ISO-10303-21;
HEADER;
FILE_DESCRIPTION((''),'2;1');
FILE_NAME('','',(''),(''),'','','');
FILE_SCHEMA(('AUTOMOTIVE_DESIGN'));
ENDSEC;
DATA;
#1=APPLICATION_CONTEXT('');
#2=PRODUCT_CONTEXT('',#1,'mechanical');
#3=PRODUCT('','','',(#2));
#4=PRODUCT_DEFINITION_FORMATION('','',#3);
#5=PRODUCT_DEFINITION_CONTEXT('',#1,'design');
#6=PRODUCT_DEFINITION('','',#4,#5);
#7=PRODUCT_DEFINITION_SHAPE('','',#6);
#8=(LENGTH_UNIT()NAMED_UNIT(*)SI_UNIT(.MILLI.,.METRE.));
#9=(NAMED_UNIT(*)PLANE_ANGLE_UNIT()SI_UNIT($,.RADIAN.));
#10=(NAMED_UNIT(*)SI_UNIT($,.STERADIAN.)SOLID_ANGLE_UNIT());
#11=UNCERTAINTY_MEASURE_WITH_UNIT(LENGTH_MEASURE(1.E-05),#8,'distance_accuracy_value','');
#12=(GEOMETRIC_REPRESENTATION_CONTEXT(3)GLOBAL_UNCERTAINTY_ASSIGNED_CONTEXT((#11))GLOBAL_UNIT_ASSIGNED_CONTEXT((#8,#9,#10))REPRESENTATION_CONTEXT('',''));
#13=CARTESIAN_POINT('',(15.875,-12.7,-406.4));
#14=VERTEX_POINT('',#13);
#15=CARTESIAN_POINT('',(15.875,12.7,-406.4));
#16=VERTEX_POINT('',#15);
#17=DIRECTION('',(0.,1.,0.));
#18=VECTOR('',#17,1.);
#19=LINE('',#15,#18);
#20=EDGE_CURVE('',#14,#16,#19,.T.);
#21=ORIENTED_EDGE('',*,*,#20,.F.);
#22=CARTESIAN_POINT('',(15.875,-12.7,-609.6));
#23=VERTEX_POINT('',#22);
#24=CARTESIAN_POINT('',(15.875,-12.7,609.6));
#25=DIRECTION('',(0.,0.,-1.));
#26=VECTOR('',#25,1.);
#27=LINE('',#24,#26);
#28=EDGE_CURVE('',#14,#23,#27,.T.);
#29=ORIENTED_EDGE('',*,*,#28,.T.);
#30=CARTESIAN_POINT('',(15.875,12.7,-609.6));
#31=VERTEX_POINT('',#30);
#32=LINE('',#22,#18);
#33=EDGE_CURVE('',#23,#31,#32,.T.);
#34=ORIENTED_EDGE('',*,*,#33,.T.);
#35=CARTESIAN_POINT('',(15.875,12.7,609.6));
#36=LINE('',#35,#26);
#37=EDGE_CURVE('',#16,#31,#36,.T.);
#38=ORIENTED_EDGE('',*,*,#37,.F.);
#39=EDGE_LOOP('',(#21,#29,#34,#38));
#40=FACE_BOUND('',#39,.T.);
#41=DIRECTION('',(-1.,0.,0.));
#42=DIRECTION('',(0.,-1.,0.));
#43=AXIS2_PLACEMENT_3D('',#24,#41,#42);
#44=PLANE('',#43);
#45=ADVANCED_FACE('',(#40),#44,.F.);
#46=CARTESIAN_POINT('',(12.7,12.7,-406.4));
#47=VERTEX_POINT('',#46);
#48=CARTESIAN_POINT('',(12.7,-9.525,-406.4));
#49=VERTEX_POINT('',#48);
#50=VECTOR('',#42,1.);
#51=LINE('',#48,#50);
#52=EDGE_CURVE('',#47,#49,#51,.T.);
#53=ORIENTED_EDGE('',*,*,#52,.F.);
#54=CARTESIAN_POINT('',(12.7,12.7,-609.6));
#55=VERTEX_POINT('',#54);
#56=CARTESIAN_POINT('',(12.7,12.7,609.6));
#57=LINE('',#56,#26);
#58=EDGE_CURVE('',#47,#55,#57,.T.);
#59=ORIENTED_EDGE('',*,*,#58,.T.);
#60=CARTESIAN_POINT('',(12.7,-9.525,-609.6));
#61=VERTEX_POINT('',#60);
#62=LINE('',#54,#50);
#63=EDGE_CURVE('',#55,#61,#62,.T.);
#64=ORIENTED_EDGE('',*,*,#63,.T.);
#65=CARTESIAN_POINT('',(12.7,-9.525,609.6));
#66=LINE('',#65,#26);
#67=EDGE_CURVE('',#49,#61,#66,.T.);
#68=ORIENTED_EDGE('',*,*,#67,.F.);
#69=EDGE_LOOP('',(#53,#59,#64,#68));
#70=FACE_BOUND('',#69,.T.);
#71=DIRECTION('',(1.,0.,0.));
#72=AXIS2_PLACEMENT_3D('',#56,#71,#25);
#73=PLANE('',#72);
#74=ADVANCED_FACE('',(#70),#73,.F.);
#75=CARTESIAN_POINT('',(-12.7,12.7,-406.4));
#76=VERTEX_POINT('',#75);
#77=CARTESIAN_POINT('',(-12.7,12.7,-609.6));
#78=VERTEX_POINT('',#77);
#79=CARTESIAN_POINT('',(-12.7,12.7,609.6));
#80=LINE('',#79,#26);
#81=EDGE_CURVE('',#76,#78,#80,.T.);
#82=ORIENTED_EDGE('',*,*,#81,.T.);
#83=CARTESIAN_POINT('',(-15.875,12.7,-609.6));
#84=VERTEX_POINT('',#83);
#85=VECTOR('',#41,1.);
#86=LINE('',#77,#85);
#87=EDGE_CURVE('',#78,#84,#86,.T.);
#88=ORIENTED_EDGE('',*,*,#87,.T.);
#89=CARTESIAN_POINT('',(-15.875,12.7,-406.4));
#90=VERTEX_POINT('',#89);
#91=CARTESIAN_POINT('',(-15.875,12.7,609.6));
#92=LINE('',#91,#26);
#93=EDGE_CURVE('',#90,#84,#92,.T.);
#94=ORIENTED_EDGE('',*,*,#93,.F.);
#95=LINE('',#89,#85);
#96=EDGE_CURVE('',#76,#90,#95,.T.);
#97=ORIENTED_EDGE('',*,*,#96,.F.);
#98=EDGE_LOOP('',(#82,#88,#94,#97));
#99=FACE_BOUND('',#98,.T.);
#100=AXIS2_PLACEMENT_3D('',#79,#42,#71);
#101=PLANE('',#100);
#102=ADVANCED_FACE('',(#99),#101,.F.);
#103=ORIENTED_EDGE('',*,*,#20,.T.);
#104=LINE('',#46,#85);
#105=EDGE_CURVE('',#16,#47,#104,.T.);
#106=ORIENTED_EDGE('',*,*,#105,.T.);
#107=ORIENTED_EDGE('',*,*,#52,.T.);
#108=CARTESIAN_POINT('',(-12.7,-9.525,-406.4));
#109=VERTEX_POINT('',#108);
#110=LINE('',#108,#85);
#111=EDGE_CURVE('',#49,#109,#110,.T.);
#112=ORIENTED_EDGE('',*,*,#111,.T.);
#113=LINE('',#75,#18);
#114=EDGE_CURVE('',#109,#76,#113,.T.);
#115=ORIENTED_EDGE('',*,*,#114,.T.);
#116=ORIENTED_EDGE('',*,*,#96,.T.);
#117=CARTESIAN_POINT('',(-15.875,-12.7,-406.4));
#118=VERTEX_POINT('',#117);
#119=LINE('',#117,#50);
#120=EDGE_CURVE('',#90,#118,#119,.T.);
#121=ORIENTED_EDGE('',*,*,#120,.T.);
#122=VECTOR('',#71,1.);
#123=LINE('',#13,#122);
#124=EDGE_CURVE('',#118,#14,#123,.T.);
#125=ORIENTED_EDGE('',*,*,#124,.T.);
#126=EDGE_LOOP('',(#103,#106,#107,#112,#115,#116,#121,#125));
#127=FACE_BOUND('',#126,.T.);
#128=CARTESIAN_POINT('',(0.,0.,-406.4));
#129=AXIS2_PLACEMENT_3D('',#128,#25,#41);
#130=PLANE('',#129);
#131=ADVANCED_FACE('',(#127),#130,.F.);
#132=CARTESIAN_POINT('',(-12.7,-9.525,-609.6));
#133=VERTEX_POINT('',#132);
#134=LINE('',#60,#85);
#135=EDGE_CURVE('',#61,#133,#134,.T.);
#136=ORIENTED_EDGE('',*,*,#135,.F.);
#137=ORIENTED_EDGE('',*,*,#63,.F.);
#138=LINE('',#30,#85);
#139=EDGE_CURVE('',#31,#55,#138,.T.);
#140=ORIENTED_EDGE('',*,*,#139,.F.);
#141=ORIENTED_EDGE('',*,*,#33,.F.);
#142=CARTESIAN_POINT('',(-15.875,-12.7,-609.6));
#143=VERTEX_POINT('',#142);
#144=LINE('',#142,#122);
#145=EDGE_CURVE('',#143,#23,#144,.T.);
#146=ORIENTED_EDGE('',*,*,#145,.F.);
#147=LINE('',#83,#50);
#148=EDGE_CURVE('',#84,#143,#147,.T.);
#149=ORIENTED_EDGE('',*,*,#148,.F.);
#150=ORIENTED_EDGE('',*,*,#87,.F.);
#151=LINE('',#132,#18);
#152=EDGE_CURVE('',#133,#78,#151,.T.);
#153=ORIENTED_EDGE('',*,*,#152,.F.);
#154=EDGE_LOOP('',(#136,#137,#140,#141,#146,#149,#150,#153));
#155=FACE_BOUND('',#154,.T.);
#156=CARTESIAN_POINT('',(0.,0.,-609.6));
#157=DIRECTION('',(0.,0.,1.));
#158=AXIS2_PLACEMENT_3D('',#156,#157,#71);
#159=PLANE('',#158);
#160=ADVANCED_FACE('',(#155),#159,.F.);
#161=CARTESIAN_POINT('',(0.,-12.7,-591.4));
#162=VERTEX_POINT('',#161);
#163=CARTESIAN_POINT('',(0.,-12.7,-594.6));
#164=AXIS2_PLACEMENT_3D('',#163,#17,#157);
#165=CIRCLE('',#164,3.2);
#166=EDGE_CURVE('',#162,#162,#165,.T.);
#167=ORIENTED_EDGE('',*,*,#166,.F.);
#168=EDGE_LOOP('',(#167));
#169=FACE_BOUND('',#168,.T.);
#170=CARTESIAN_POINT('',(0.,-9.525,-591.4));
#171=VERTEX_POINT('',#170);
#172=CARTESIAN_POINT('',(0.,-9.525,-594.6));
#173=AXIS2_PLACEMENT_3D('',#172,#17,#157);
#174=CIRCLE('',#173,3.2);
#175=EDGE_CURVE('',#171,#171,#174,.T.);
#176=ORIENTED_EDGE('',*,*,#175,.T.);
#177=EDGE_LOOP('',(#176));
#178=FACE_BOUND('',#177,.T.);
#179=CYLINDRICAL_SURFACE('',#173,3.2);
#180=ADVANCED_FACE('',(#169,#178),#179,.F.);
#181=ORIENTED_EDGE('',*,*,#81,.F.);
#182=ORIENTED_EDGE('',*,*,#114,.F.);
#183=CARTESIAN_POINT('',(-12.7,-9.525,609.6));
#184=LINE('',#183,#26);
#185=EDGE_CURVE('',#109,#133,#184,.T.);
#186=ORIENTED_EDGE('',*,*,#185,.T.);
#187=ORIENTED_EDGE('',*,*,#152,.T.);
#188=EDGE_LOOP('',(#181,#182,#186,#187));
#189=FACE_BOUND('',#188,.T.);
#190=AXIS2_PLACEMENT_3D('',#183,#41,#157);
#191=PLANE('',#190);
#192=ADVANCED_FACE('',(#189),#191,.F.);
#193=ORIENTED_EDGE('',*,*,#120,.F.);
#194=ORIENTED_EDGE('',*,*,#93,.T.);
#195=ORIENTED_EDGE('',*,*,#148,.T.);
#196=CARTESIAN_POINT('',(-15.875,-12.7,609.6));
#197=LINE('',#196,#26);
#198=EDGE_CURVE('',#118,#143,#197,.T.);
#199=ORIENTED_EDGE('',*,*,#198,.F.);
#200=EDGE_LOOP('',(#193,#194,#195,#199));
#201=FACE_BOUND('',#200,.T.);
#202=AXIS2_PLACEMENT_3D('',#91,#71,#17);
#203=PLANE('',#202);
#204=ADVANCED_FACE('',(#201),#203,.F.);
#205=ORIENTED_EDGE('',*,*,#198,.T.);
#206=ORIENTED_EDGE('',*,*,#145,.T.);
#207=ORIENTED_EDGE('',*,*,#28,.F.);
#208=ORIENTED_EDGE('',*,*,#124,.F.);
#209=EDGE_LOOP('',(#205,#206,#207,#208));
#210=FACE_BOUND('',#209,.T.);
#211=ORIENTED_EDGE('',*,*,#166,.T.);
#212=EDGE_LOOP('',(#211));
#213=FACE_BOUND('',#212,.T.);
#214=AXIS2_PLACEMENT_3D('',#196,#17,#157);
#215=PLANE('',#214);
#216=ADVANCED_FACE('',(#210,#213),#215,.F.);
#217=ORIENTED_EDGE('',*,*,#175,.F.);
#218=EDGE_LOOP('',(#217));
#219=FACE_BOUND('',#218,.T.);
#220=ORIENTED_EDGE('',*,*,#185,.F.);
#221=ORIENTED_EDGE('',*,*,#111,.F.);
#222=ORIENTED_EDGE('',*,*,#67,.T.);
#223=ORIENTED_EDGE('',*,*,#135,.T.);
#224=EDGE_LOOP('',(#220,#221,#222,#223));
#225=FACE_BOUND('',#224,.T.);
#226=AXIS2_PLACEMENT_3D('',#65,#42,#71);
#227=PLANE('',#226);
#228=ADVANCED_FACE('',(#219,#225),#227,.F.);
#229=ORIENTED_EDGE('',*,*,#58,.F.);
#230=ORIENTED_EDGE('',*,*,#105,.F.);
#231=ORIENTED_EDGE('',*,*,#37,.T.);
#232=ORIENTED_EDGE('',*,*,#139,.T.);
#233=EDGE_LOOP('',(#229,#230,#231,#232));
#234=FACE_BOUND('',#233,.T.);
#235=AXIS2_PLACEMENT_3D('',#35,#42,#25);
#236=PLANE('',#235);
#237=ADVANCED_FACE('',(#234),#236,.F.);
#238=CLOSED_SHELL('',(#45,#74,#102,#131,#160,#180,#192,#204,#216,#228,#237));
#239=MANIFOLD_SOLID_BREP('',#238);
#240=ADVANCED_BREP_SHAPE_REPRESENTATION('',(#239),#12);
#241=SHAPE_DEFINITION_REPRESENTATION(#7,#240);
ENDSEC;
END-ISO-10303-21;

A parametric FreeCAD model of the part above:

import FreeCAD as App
import Part
import Sketcher
Q = App.Units.Quantity


def add_polygon(sketch, points):
    """Adds a closed chain of lines whose ends are joined by coincident constraints."""
    first, n = sketch.GeometryCount, len(points)
    for a, b in zip(points, points[1:] + points[:1]):
        sketch.addGeometry(Part.LineSegment(App.Vector(*a, 0), App.Vector(*b, 0)), False)
    for i in range(n):
        sketch.addConstraint(Sketcher.Constraint("Coincident", first + i, 2, first + (i + 1) % n, 1))

doc = App.newDocument("Part")
body = doc.addObject("PartDesign::Body", "Body")

sketch1 = body.newObject("Sketcher::SketchObject", "Sketch")
sketch1.AttachmentSupport = (doc.getObject("XY_Plane"), [""])
sketch1.MapMode = "FlatFace"
add_polygon(sketch1, [(-15.875, 12.7), (-15.875, -12.7), (15.875, -12.7), (15.875, 12.7), (12.7, 12.7), (12.7, -9.525), (-12.7, -9.525), (-12.7, 12.7)])
sketch1.addConstraint(Sketcher.Constraint("Vertical", 0))
sketch1.addConstraint(Sketcher.Constraint("Horizontal", 1))
sketch1.addConstraint(Sketcher.Constraint("Vertical", 2))
sketch1.addConstraint(Sketcher.Constraint("Horizontal", 3))
sketch1.addConstraint(Sketcher.Constraint("Vertical", 4))
sketch1.addConstraint(Sketcher.Constraint("Horizontal", 5))
sketch1.addConstraint(Sketcher.Constraint("Vertical", 6))
sketch1.addConstraint(Sketcher.Constraint("Horizontal", 7))
sketch1.addConstraint(Sketcher.Constraint("Symmetric", 0, 2, 2, 2, -1, 1))
sketch1.addConstraint(Sketcher.Constraint("Symmetric", 3, 2, 6, 2, -2))
sketch1.addConstraint(Sketcher.Constraint("Equal", 5, 0))
sketch1.addConstraint(Sketcher.Constraint("DistanceX", 5, 2, 5, 1, Q("1 in")))
sketch1.addConstraint(Sketcher.Constraint("DistanceX", 1, 1, 1, 2, Q("1.25 in")))
sketch1.addConstraint(Sketcher.Constraint("DistanceY", 4, 2, 4, 1, Q("0.875 in")))
pad1 = body.newObject("PartDesign::Pad", "Pad")
pad1.Profile = sketch1
pad1.Length = Q("48 in")
pad1.Midplane = True

sketch2 = body.newObject("Sketcher::SketchObject", "Sketch001")
sketch2.AttachmentSupport = (doc.getObject("XY_Plane"), [""])
sketch2.MapMode = "FlatFace"
sketch2.AttachmentOffset = App.Placement(App.Vector(0, 0, 24 * 25.4), App.Rotation())
add_polygon(sketch2, [(-12.7, 12.7), (-15.875, 12.7), (-15.875, -12.7), (15.875, -12.7), (15.875, 12.7), (12.7, 12.7), (12.7, -9.525), (-12.7, -9.525)])
sketch2.addConstraint(Sketcher.Constraint("Horizontal", 0))
sketch2.addConstraint(Sketcher.Constraint("Vertical", 1))
sketch2.addConstraint(Sketcher.Constraint("Horizontal", 2))
sketch2.addConstraint(Sketcher.Constraint("Vertical", 3))
sketch2.addConstraint(Sketcher.Constraint("Horizontal", 4))
sketch2.addConstraint(Sketcher.Constraint("Vertical", 5))
sketch2.addConstraint(Sketcher.Constraint("Horizontal", 6))
sketch2.addConstraint(Sketcher.Constraint("Vertical", 7))
sketch2.addConstraint(Sketcher.Constraint("Symmetric", 0, 2, 2, 2, -1, 1))
sketch2.addConstraint(Sketcher.Constraint("Symmetric", 4, 2, 7, 2, -2))
sketch2.addConstraint(Sketcher.Constraint("Equal", 6, 1))
sketch2.addConstraint(Sketcher.Constraint("DistanceX", 6, 2, 6, 1, Q("1 in")))
sketch2.addConstraint(Sketcher.Constraint("DistanceX", 2, 1, 2, 2, Q("1.25 in")))
sketch2.addConstraint(Sketcher.Constraint("DistanceY", 5, 2, 5, 1, Q("0.875 in")))
pocket1 = body.newObject("PartDesign::Pocket", "Pocket")
pocket1.Profile = sketch2
pocket1.Length = Q("40 in")

sketch3 = body.newObject("Sketcher::SketchObject", "Sketch002")
sketch3.AttachmentSupport = (doc.getObject("XZ_Plane"), [""])
sketch3.MapMode = "FlatFace"
sketch3.AttachmentOffset = App.Placement(App.Vector(0, 0, 0.375 * 25.4), App.Rotation())
sketch3.addGeometry(Part.Circle(App.Vector(0, -594.6, 0), App.Vector(0, 0, 1), 3.2), False)
sketch3.addConstraint(Sketcher.Constraint("PointOnObject", 0, 3, -2))
sketch3.addConstraint(Sketcher.Constraint("Diameter", 0, Q("6.4 mm")))
sketch3.addConstraint(Sketcher.Constraint("DistanceY", 0, 3, -1, 1, Q("594.6 mm")))
doc.recompute()
hole = body.newObject("PartDesign::Hole", "Hole")
hole.Profile = sketch3
hole.ThreadType = "None"
hole.Diameter = 6.4
hole.DepthType = "ThroughAll"
hole.Reversed = True

doc.recompute()
